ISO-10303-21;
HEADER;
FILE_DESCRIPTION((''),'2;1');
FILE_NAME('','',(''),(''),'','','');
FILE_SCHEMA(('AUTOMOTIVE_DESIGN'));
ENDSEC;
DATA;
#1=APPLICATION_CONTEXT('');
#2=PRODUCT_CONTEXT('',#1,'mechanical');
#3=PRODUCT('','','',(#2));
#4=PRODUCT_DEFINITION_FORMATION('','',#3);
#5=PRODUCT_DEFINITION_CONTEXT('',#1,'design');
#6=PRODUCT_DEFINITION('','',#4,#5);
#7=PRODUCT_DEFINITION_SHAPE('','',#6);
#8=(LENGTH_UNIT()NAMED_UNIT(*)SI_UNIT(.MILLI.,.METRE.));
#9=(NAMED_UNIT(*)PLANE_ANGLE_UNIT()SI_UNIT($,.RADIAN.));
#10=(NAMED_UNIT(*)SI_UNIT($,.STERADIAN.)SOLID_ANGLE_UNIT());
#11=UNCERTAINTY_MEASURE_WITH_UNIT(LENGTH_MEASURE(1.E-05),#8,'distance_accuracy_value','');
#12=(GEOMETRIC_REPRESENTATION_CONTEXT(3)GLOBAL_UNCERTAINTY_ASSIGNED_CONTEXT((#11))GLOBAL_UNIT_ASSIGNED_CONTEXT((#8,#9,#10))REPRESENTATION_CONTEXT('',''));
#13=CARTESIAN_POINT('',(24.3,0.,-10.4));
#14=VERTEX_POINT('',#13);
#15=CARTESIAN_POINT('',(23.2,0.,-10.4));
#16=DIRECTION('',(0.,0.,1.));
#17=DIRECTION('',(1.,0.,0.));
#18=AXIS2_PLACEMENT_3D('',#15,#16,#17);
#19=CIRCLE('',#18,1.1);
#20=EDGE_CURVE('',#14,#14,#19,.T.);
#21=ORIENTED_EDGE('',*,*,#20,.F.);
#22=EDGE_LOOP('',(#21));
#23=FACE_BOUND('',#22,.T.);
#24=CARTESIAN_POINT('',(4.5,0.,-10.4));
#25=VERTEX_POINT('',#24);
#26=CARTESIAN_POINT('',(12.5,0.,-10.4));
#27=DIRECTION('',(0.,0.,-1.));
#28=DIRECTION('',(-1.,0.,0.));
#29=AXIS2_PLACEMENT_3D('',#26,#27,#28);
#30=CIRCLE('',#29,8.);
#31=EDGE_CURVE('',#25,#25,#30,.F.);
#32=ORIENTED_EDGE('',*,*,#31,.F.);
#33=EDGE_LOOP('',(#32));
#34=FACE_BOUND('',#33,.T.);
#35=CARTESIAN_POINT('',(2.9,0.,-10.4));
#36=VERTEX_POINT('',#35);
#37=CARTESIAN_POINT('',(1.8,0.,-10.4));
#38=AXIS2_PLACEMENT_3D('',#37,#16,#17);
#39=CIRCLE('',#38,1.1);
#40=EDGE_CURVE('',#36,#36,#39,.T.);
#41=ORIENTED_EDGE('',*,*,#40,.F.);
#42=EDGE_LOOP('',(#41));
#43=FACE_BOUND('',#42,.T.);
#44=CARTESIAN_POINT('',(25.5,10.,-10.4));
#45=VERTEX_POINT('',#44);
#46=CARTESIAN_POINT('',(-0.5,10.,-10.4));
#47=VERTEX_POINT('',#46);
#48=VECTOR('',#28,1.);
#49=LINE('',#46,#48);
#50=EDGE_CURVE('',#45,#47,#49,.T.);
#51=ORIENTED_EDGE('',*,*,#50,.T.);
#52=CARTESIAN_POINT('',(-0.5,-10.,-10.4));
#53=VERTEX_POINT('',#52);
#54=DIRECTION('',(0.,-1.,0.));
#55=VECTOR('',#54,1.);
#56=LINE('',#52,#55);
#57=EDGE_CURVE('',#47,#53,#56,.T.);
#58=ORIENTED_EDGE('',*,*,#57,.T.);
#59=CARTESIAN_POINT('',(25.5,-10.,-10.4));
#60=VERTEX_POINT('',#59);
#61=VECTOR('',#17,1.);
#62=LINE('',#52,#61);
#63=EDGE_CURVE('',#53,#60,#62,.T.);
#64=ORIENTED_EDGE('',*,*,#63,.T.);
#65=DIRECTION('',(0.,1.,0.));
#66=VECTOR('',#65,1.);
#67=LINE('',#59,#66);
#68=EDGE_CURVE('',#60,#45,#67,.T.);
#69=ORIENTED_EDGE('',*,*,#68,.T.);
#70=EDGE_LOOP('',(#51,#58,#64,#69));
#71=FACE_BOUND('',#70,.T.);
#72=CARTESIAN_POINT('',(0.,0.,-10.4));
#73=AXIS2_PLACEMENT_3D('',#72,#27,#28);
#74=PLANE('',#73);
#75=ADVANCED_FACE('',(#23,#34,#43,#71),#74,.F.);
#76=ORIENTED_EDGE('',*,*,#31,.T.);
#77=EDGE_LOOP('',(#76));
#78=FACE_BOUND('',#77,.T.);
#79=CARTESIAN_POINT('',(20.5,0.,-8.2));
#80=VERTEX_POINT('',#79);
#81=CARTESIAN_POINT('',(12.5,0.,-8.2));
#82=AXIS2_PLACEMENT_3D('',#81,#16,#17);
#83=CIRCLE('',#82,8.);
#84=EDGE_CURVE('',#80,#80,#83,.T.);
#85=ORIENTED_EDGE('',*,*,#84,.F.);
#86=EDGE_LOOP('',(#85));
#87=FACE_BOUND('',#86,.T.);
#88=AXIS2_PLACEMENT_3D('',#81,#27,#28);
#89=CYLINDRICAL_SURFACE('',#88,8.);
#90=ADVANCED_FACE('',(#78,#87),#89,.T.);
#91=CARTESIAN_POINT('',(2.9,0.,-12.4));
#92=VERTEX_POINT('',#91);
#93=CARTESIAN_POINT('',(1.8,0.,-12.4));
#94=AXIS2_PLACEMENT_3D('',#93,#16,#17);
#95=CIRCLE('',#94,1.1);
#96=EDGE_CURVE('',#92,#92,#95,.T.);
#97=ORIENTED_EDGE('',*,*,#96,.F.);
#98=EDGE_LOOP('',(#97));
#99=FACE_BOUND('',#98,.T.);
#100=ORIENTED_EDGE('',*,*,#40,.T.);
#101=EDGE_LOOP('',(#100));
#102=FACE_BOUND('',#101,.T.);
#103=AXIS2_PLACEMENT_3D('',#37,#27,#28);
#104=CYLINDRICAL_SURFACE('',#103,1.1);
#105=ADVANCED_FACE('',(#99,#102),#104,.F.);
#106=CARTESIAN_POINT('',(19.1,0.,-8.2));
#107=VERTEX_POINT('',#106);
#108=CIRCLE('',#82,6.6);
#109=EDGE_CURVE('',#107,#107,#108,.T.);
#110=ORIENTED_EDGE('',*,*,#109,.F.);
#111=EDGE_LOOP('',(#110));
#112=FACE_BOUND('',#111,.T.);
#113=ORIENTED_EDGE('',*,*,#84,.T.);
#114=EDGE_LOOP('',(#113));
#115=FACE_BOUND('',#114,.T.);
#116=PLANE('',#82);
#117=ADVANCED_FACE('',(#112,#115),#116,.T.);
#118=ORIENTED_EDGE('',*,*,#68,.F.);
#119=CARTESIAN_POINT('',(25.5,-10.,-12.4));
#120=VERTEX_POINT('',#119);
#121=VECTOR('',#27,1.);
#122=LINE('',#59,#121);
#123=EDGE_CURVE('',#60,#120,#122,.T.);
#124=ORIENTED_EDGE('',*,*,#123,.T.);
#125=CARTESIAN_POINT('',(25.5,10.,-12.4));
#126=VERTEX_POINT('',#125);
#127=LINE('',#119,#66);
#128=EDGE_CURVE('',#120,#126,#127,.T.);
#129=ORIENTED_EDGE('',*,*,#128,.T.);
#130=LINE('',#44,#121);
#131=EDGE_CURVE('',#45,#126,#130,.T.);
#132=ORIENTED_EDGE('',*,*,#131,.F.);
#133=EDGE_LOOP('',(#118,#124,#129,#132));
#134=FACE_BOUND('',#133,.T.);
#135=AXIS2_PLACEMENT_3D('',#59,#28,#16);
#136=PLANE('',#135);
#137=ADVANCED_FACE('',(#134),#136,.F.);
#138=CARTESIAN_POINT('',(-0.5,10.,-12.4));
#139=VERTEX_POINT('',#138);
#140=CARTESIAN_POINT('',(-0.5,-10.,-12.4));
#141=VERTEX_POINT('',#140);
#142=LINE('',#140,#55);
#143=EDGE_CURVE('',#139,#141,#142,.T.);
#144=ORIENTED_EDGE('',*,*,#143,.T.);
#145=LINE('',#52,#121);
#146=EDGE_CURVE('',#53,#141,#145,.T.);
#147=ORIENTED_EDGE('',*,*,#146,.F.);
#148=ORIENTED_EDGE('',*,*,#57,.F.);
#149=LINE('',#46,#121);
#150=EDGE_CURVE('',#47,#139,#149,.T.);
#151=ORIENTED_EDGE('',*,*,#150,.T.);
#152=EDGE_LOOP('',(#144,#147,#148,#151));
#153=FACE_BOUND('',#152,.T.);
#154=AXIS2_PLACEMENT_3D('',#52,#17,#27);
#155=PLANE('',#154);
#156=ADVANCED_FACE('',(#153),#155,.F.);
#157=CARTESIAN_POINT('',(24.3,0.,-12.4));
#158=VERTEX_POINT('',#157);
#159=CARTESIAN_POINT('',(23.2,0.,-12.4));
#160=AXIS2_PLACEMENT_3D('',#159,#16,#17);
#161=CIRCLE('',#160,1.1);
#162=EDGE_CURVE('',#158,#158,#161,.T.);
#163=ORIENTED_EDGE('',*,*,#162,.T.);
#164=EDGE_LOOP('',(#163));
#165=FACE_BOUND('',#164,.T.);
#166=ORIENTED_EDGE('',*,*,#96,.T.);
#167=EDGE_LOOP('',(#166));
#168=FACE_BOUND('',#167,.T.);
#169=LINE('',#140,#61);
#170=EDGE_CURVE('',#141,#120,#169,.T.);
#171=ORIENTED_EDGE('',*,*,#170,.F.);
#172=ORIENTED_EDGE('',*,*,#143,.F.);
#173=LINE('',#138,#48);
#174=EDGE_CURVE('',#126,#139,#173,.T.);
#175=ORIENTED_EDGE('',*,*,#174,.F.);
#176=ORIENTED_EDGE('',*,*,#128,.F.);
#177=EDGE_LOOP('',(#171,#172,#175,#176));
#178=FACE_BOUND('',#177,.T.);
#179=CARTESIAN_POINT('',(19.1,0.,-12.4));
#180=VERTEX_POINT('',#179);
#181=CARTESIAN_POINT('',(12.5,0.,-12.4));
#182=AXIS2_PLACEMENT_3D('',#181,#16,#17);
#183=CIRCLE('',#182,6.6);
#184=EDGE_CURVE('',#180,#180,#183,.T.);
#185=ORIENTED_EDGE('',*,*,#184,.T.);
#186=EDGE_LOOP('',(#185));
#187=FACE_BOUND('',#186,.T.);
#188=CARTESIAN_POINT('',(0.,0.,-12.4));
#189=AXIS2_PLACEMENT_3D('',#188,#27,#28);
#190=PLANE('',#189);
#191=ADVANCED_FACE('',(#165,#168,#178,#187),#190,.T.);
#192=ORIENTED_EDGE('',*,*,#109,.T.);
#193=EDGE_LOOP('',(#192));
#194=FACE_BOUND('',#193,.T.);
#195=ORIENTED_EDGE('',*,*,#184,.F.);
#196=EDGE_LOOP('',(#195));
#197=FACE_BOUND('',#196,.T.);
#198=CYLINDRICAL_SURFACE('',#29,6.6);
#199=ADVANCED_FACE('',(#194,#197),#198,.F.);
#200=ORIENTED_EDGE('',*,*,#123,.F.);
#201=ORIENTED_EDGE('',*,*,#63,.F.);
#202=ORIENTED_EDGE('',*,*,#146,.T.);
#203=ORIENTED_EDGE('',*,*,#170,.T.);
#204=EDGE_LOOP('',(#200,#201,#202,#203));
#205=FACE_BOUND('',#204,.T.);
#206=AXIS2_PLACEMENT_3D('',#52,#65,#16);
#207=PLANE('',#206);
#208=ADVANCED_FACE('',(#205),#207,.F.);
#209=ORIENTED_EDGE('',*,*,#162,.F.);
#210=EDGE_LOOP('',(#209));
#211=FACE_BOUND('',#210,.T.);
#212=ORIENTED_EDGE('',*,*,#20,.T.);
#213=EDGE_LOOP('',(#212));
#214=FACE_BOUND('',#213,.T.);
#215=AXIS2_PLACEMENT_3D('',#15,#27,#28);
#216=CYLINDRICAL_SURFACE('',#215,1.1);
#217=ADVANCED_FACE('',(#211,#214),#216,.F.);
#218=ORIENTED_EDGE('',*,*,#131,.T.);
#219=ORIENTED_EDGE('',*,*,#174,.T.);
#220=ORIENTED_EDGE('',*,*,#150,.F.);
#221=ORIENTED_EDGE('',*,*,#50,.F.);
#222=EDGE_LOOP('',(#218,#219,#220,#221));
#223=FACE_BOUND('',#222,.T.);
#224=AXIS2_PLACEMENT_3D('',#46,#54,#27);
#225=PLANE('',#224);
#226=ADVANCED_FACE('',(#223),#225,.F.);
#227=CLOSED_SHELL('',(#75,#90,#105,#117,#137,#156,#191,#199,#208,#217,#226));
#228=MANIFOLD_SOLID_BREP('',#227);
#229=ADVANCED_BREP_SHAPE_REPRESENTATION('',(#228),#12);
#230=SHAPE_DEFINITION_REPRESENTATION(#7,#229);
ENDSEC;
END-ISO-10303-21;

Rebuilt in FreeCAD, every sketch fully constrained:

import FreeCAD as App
import Part
import Sketcher
Q = App.Units.Quantity

doc = App.newDocument("Part")
body = doc.addObject("PartDesign::Body", "Body")

sketch1 = doc.addObject("Sketcher::SketchObject", "Sketch")
body.addObject(sketch1)
sketch1.AttachmentSupport = (doc.XY_Plane, [""])
sketch1.MapMode = "FlatFace"
sketch1.AttachmentOffset = App.Placement(App.Vector(0, 0, -12.4), App.Rotation())
sketch1.addGeometry(Part.LineSegment(App.Vector(-0.5, 10, 0), App.Vector(-0.5, -10, 0)), False)
sketch1.addGeometry(Part.LineSegment(App.Vector(-0.5, -10, 0), App.Vector(25.5, -10, 0)), False)
sketch1.addGeometry(Part.LineSegment(App.Vector(25.5, -10, 0), App.Vector(25.5, 10, 0)), False)
sketch1.addGeometry(Part.LineSegment(App.Vector(25.5, 10, 0), App.Vector(-0.5, 10, 0)), False)
sketch1.addGeometry(Part.Circle(App.Vector(1.8, 0, 0), App.Vector(0, 0, 1), 1.1), False)
sketch1.addGeometry(Part.Circle(App.Vector(12.5, 0, 0), App.Vector(0, 0, 1), 6.6), False)
sketch1.addGeometry(Part.Circle(App.Vector(23.2, 0, 0), App.Vector(0, 0, 1), 1.1), False)
sketch1.addConstraint(Sketcher.Constraint("Coincident", 0, 2, 1, 1))
sketch1.addConstraint(Sketcher.Constraint("Coincident", 1, 2, 2, 1))
sketch1.addConstraint(Sketcher.Constraint("Coincident", 2, 2, 3, 1))
sketch1.addConstraint(Sketcher.Constraint("Coincident", 3, 2, 0, 1))
sketch1.addConstraint(Sketcher.Constraint("Vertical", 0))
sketch1.addConstraint(Sketcher.Constraint("Horizontal", 1))
sketch1.addConstraint(Sketcher.Constraint("Vertical", 2))
sketch1.addConstraint(Sketcher.Constraint("Horizontal", 3))
sketch1.addConstraint(Sketcher.Constraint("Equal", 4, 6))
sketch1.addConstraint(Sketcher.Constraint("PointOnObject", 4, 3, -1))
sketch1.addConstraint(Sketcher.Constraint("PointOnObject", 5, 3, -1))
sketch1.addConstraint(Sketcher.Constraint("PointOnObject", 6, 3, -1))
sketch1.addConstraint(Sketcher.Constraint("Diameter", 4, Q("2.2 mm")))
sketch1.addConstraint(Sketcher.Constraint("Diameter", 5, Q("13.2 mm")))
sketch1.addConstraint(Sketcher.Constraint("DistanceX", 1, 1, 1, 2, Q("26 mm")))
sketch1.addConstraint(Sketcher.Constraint("DistanceY", 0, 2, 0, 1, Q("20 mm")))
sketch1.addConstraint(Sketcher.Constraint("DistanceY", 0, 2, -1, 1, Q("10 mm")))
sketch1.addConstraint(Sketcher.Constraint("DistanceX", 0, 2, 5, 3, Q("13 mm")))
sketch1.addConstraint(Sketcher.Constraint("DistanceX", -1, 1, 4, 3, Q("1.8 mm")))
sketch1.addConstraint(Sketcher.Constraint("DistanceX", -1, 1, 5, 3, Q("12.5 mm")))
sketch1.addConstraint(Sketcher.Constraint("DistanceX", -1, 1, 6, 3, Q("23.2 mm")))
pad1 = doc.addObject("PartDesign::Pad", "Pad")
body.addObject(pad1)
pad1.Profile = sketch1
pad1.Length = 2

sketch2 = doc.addObject("Sketcher::SketchObject", "Sketch001")
body.addObject(sketch2)
sketch2.AttachmentSupport = (doc.XY_Plane, [""])
sketch2.MapMode = "FlatFace"
sketch2.AttachmentOffset = App.Placement(App.Vector(0, 0, -10.41), App.Rotation())
sketch2.addGeometry(Part.Circle(App.Vector(12.5, 0, 0), App.Vector(0, 0, 1), 8), False)
sketch2.addGeometry(Part.Circle(App.Vector(12.5, 0, 0), App.Vector(0, 0, 1), 6.6), False)
sketch2.addConstraint(Sketcher.Constraint("Coincident", 1, 3, 0, 3))
sketch2.addConstraint(Sketcher.Constraint("PointOnObject", 0, 3, -1))
sketch2.addConstraint(Sketcher.Constraint("Diameter", 0, Q("16 mm")))
sketch2.addConstraint(Sketcher.Constraint("Diameter", 1, Q("13.2 mm")))
sketch2.addConstraint(Sketcher.Constraint("DistanceX", -1, 1, 0, 3, Q("12.5 mm")))
pad2 = doc.addObject("PartDesign::Pad", "Pad001")
body.addObject(pad2)
pad2.Profile = sketch2
pad2.Length = 2.21

doc.recompute()
